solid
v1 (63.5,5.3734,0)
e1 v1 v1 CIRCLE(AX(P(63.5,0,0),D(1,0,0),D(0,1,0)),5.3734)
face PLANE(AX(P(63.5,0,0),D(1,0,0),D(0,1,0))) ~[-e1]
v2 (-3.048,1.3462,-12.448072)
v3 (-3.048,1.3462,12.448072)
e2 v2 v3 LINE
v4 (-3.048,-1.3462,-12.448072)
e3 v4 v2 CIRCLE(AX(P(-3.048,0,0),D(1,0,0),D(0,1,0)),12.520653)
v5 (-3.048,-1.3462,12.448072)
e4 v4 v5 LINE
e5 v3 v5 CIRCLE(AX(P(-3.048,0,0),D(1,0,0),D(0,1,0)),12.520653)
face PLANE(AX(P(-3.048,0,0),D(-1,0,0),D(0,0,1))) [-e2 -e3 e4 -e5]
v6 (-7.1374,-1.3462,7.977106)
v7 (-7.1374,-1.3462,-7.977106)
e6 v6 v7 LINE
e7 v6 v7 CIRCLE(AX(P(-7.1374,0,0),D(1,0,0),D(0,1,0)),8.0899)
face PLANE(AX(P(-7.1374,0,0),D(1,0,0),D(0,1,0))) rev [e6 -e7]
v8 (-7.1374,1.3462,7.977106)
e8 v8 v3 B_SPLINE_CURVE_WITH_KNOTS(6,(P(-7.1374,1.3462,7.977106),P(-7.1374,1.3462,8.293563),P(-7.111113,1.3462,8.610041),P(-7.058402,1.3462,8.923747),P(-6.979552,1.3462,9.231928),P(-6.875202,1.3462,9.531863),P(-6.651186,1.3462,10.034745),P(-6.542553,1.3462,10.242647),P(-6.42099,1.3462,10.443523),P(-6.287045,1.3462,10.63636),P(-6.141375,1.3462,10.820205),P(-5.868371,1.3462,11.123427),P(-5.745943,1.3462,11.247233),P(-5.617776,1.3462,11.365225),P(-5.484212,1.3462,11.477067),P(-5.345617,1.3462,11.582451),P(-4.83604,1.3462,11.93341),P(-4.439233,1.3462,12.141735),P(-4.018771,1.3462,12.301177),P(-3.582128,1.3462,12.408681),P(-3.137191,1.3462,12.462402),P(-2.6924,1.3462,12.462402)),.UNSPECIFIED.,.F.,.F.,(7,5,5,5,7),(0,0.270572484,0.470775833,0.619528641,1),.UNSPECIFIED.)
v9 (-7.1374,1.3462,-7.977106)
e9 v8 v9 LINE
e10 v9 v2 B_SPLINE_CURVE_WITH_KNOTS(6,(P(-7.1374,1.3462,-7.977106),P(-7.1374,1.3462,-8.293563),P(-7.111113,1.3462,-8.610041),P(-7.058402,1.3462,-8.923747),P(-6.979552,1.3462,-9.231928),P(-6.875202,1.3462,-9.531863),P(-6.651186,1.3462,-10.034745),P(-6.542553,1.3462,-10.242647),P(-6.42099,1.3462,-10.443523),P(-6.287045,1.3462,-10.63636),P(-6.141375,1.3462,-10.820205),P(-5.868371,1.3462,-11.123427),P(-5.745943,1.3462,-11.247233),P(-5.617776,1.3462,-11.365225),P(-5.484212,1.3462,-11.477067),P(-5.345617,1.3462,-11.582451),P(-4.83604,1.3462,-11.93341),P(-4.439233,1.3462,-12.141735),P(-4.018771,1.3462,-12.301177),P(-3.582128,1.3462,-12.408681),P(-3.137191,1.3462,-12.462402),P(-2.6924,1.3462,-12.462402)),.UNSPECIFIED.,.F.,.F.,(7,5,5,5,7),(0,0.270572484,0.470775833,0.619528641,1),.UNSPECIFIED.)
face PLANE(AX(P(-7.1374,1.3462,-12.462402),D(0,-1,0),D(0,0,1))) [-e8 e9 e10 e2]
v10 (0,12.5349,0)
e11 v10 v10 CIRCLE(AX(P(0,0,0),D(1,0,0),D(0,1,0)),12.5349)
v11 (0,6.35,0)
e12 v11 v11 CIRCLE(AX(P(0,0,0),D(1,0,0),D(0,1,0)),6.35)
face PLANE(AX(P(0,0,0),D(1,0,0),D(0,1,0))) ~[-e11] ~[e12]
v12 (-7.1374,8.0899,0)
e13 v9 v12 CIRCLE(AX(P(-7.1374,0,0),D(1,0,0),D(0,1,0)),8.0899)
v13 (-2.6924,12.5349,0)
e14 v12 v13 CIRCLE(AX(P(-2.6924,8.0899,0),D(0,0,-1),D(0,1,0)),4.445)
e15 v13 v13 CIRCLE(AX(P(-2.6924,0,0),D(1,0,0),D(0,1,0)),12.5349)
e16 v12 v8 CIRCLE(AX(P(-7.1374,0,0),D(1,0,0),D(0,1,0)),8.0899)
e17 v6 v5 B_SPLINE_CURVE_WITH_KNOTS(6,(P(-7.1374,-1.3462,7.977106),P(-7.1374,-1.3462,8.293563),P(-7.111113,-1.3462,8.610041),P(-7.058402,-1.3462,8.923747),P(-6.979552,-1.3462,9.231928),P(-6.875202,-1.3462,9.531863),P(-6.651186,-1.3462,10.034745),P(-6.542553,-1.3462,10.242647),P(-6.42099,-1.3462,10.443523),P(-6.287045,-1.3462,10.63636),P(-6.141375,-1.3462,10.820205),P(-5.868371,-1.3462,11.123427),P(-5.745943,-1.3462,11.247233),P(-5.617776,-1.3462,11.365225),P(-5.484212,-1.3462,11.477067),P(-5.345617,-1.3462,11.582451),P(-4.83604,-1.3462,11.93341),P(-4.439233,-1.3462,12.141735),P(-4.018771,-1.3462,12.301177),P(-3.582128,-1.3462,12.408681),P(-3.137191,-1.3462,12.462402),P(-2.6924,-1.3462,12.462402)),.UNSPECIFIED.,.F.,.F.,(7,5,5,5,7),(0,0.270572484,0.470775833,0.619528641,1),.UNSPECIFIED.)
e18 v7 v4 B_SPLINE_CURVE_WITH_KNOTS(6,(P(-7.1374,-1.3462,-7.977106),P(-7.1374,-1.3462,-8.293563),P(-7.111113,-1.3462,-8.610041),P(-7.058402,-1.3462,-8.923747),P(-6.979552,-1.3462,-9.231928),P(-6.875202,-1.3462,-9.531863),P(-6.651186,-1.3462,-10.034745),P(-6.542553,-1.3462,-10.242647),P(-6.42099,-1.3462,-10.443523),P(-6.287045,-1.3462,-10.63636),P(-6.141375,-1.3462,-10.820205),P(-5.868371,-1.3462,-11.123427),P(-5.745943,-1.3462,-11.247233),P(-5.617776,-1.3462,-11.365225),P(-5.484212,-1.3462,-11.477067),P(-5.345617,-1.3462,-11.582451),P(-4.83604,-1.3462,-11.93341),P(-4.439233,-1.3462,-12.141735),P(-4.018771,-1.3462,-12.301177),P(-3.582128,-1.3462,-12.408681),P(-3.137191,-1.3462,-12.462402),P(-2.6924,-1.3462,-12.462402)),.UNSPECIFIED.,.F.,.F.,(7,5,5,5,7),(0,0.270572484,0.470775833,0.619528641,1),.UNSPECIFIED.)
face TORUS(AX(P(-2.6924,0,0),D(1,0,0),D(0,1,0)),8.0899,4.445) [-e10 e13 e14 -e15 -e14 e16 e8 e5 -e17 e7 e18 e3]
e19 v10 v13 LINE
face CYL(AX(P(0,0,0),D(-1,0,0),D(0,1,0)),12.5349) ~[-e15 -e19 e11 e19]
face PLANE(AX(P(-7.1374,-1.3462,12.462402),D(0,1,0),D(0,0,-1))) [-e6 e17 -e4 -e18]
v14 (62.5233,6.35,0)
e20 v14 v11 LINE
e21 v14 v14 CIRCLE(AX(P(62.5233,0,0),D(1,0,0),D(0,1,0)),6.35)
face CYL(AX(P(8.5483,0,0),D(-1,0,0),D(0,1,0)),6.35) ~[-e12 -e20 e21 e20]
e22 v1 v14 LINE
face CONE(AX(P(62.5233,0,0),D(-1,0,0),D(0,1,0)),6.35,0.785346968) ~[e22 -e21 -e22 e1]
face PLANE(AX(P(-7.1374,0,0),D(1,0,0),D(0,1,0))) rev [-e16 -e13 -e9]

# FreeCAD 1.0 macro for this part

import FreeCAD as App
import Part
import Sketcher
Q = App.Units.Quantity


def edges_at(feature, points):
    """Names of the edges that pass closest to the given points."""
    edges = feature.Shape.Edges
    near = lambda p: min(range(len(edges)), key=lambda i: edges[i].distToShape(Part.Vertex(*p))[0])
    return sorted({f"Edge{near(p) + 1}" for p in points})


def add_polygon(sketch, points):
    """Adds a closed chain of lines whose ends are joined by coincident constraints."""
    first, n = sketch.GeometryCount, len(points)
    for a, b in zip(points, points[1:] + points[:1]):
        sketch.addGeometry(Part.LineSegment(App.Vector(*a, 0), App.Vector(*b, 0)), False)
    for i in range(n):
        sketch.addConstraint(Sketcher.Constraint("Coincident", first + i, 2, first + (i + 1) % n, 1))

doc = App.newDocument("Part")
params = doc.addObject("Spreadsheet::Sheet", "Params")
for row, (alias, value) in enumerate([
    ("sketch1_width", "2.5 in"),
    ("sketch1_width2", "0.281 in"),
    ("sketch1_height", "0.25 in"),
    ("revolution_angle", "360 deg"),
    ("fillet_radius", "0.175 in"),
    ("sketch2_width", "0.106 in"),
    ("sketch2_height", "0.987 in"),
    ("pocket1_length", "0.161 in"),
    ("chamfer_size", "0.9766 mm"),
    ("chamfer_size2", "0.9767 mm"),
], start=1):
    params.set(f"A{row}", alias)
    params.set(f"B{row}", "=" + value)
    params.setAlias(f"B{row}", alias)

body = doc.addObject("PartDesign::Body", "Body")

# Sketch on XY plane
sketch1 = body.newObject("Sketcher::SketchObject", "Sketch")
sketch1.AttachmentSupport = (doc.getObject("XY_Plane"), [""])
sketch1.MapMode = "FlatFace"
add_polygon(sketch1, [(-7.1374, 12.5349), (-7.1374, 0), (63.5, 0), (63.5, 6.35), (0, 6.35), (0, 12.5349)])  # lines 0-5
sketch1.addConstraint([
    Sketcher.Constraint("Vertical", 0),
    Sketcher.Constraint("Horizontal", 1),
    Sketcher.Constraint("Vertical", 2),
    Sketcher.Constraint("Horizontal", 3),
    Sketcher.Constraint("Vertical", 4),
    Sketcher.Constraint("Horizontal", 5),
    Sketcher.Constraint("PointOnObject", 0, 2, -1),
    Sketcher.Constraint("PointOnObject", 3, 2, -2),
    Sketcher.Constraint("DistanceX", 3, 2, 3, 1, Q("2.5 in")),
    Sketcher.Constraint("DistanceX", 5, 2, 5, 1, Q("0.281 in")),
    Sketcher.Constraint("DistanceY", 2, 1, 2, 2, Q("0.25 in")),
    Sketcher.Constraint("DistanceY", 0, 2, 0, 1, Q("0.4935 in")),
])
sketch1.setExpression("Constraints[14]", "Params.sketch1_width")
sketch1.setExpression("Constraints[15]", "Params.sketch1_width2")
sketch1.setExpression("Constraints[16]", "Params.sketch1_height")
revolution = body.newObject("PartDesign::Revolution", "Revolution")
revolution.Profile = sketch1
revolution.ReferenceAxis = (sketch1, ["H_Axis"])
revolution.setExpression("Angle", "Params.revolution_angle")
doc.recompute()

fillet = body.newObject("PartDesign::Fillet", "Fillet")
fillet.Base = (revolution, edges_at(revolution, [(-7.137, -12.535, 0)]))
fillet.setExpression("Radius", "Params.fillet_radius")

# Sketch on YZ plane
sketch2 = body.newObject("Sketcher::SketchObject", "Sketch001")
sketch2.AttachmentSupport = (doc.getObject("YZ_Plane"), [""])
sketch2.MapMode = "FlatFace"
sketch2.AttachmentOffset = App.Placement(App.Vector(0, 0, -0.281 * 25.4), App.Rotation())
add_polygon(sketch2, [(-1.3462, 12.5349), (1.3462, 12.5349), (1.3462, -12.5349), (-1.3462, -12.5349)])  # lines 0-3
sketch2.addConstraint([
    Sketcher.Constraint("Horizontal", 0),
    Sketcher.Constraint("Vertical", 1),
    Sketcher.Constraint("Horizontal", 2),
    Sketcher.Constraint("Vertical", 3),
    Sketcher.Constraint("Symmetric", 0, 2, 2, 2, -1, 1),
    Sketcher.Constraint("DistanceX", 0, 1, 0, 2, Q("0.106 in")),
    Sketcher.Constraint("DistanceY", 1, 2, 1, 1, Q("0.987 in")),
])
sketch2.setExpression("Constraints[9]", "Params.sketch2_width")
sketch2.setExpression("Constraints[10]", "Params.sketch2_height")
pocket1 = body.newObject("PartDesign::Pocket", "Pocket")
pocket1.Profile = sketch2
pocket1.setExpression("Length", "Params.pocket1_length")
pocket1.Reversed = True
doc.recompute()

chamfer = body.newObject("PartDesign::Chamfer", "Chamfer")
chamfer.Base = (pocket1, edges_at(pocket1, [(63.5, -6.35, 0)]))
chamfer.ChamferType = "Two distances"
chamfer.setExpression("Size", "Params.chamfer_size")
chamfer.setExpression("Size2", "Params.chamfer_size2")

doc.recompute()
